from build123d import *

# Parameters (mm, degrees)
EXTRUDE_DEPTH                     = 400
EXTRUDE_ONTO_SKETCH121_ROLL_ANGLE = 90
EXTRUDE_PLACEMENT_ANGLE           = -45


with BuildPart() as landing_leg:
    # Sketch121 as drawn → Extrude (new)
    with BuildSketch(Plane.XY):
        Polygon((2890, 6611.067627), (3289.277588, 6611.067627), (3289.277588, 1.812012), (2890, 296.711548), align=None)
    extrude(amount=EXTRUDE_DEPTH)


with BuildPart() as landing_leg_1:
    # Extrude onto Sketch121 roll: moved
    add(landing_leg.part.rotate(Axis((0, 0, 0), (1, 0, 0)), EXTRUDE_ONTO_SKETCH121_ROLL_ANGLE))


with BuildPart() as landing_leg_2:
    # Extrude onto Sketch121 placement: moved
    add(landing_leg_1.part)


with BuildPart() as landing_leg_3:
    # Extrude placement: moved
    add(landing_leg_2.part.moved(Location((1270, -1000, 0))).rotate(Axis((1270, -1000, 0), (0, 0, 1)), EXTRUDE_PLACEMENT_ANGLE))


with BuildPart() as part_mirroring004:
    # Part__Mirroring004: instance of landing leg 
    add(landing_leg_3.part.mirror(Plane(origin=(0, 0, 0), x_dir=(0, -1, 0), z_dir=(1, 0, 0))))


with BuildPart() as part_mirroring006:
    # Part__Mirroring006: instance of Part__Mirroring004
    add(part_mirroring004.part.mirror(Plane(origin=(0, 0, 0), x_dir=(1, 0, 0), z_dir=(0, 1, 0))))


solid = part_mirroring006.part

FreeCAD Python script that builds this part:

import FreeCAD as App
import Part
import Sketcher

V = App.Vector

doc = App.newDocument("Part")
body = doc.addObject("PartDesign::Body", "Body")

# Sketch on XY plane
sketch1 = body.newObject("Sketcher::SketchObject", "Sketch")
sketch1.AttachmentSupport = (doc.getObject("XY_Plane"), [""])
sketch1.MapMode = "FlatFace"
sketch1.addGeometry([
    Part.LineSegment(V(3289.277588, 6611.067627, 0), V(2890, 6611.067627, 0)),
    Part.LineSegment(V(2890, 6611.067627, 0), V(2890, 296.711548, 0)),
    Part.LineSegment(V(2890, 296.711548, 0), V(3289.277588, 1.812012, 0)),
    Part.LineSegment(V(3289.277588, 1.812012, 0), V(3289.277588, 6611.067627, 0)),
], False)
sketch1.addConstraint([
    Sketcher.Constraint("Coincident", 0, 2, 1, 1),
    Sketcher.Constraint("Coincident", 1, 2, 2, 1),
    Sketcher.Constraint("Coincident", 2, 2, 3, 1),
    Sketcher.Constraint("Coincident", 3, 2, 0, 1),
    Sketcher.Constraint("Horizontal", 0),
    Sketcher.Constraint("Vertical", 1),
    Sketcher.Constraint("Vertical", 3),
    Sketcher.Constraint("DistanceX", -1, 1, 0, 2, 2890.0),
    Sketcher.Constraint("DistanceY", 1, 2, 1, 1, 6314.356079),
    Sketcher.Constraint("Distance", 2, 496.375189),
    Sketcher.Constraint("DistanceX", 0, 2, 0, 1, 399.277588),
    Sketcher.Constraint("DistanceY", -1, 1, 1, 2, 296.711548),
])
pad1 = body.newObject("PartDesign::Pad", "Pad")
pad1.Profile = sketch1
pad1.Length = 400
body2 = doc.addObject("PartDesign::Body", "Body001")
doc.recompute()

body.Placement = App.Placement(V(0, 0, 0), App.Rotation(V(1, 0, 0), 90))
boolean = body2.newObject("PartDesign::Boolean", "Boolean")
boolean.Type = "Fuse"
boolean.addObjects([body])
body3 = doc.addObject("PartDesign::Body", "Body002")
doc.recompute()

body2.Placement = App.Placement(V(1270, -1000, 0), App.Rotation(V(0, 0, 1), 315))
boolean2 = body3.newObject("PartDesign::Boolean", "Boolean001")
boolean2.Type = "Fuse"
boolean2.addObjects([body2])
body4 = doc.addObject("PartDesign::Body", "Body003")
doc.recompute()

mirroring = doc.addObject("Part::Mirroring", "Mirroring")
mirroring.Source = body3
mirroring.Base = V(0, 0, 0)
mirroring.Normal = V(1, 0, 0)
body4.BaseFeature = mirroring
doc.recompute()
body5 = doc.addObject("PartDesign::Body", "Body004")
doc.recompute()

mirroring2 = doc.addObject("Part::Mirroring", "Mirroring001")
mirroring2.Source = body4
mirroring2.Base = V(0, 0, 0)
mirroring2.Normal = V(0, 1, 0)
body5.BaseFeature = mirroring2
doc.recompute()
body3.Visibility = False
body4.Visibility = False
mirroring.Visibility = False
mirroring2.Visibility = False

doc.recompute()
